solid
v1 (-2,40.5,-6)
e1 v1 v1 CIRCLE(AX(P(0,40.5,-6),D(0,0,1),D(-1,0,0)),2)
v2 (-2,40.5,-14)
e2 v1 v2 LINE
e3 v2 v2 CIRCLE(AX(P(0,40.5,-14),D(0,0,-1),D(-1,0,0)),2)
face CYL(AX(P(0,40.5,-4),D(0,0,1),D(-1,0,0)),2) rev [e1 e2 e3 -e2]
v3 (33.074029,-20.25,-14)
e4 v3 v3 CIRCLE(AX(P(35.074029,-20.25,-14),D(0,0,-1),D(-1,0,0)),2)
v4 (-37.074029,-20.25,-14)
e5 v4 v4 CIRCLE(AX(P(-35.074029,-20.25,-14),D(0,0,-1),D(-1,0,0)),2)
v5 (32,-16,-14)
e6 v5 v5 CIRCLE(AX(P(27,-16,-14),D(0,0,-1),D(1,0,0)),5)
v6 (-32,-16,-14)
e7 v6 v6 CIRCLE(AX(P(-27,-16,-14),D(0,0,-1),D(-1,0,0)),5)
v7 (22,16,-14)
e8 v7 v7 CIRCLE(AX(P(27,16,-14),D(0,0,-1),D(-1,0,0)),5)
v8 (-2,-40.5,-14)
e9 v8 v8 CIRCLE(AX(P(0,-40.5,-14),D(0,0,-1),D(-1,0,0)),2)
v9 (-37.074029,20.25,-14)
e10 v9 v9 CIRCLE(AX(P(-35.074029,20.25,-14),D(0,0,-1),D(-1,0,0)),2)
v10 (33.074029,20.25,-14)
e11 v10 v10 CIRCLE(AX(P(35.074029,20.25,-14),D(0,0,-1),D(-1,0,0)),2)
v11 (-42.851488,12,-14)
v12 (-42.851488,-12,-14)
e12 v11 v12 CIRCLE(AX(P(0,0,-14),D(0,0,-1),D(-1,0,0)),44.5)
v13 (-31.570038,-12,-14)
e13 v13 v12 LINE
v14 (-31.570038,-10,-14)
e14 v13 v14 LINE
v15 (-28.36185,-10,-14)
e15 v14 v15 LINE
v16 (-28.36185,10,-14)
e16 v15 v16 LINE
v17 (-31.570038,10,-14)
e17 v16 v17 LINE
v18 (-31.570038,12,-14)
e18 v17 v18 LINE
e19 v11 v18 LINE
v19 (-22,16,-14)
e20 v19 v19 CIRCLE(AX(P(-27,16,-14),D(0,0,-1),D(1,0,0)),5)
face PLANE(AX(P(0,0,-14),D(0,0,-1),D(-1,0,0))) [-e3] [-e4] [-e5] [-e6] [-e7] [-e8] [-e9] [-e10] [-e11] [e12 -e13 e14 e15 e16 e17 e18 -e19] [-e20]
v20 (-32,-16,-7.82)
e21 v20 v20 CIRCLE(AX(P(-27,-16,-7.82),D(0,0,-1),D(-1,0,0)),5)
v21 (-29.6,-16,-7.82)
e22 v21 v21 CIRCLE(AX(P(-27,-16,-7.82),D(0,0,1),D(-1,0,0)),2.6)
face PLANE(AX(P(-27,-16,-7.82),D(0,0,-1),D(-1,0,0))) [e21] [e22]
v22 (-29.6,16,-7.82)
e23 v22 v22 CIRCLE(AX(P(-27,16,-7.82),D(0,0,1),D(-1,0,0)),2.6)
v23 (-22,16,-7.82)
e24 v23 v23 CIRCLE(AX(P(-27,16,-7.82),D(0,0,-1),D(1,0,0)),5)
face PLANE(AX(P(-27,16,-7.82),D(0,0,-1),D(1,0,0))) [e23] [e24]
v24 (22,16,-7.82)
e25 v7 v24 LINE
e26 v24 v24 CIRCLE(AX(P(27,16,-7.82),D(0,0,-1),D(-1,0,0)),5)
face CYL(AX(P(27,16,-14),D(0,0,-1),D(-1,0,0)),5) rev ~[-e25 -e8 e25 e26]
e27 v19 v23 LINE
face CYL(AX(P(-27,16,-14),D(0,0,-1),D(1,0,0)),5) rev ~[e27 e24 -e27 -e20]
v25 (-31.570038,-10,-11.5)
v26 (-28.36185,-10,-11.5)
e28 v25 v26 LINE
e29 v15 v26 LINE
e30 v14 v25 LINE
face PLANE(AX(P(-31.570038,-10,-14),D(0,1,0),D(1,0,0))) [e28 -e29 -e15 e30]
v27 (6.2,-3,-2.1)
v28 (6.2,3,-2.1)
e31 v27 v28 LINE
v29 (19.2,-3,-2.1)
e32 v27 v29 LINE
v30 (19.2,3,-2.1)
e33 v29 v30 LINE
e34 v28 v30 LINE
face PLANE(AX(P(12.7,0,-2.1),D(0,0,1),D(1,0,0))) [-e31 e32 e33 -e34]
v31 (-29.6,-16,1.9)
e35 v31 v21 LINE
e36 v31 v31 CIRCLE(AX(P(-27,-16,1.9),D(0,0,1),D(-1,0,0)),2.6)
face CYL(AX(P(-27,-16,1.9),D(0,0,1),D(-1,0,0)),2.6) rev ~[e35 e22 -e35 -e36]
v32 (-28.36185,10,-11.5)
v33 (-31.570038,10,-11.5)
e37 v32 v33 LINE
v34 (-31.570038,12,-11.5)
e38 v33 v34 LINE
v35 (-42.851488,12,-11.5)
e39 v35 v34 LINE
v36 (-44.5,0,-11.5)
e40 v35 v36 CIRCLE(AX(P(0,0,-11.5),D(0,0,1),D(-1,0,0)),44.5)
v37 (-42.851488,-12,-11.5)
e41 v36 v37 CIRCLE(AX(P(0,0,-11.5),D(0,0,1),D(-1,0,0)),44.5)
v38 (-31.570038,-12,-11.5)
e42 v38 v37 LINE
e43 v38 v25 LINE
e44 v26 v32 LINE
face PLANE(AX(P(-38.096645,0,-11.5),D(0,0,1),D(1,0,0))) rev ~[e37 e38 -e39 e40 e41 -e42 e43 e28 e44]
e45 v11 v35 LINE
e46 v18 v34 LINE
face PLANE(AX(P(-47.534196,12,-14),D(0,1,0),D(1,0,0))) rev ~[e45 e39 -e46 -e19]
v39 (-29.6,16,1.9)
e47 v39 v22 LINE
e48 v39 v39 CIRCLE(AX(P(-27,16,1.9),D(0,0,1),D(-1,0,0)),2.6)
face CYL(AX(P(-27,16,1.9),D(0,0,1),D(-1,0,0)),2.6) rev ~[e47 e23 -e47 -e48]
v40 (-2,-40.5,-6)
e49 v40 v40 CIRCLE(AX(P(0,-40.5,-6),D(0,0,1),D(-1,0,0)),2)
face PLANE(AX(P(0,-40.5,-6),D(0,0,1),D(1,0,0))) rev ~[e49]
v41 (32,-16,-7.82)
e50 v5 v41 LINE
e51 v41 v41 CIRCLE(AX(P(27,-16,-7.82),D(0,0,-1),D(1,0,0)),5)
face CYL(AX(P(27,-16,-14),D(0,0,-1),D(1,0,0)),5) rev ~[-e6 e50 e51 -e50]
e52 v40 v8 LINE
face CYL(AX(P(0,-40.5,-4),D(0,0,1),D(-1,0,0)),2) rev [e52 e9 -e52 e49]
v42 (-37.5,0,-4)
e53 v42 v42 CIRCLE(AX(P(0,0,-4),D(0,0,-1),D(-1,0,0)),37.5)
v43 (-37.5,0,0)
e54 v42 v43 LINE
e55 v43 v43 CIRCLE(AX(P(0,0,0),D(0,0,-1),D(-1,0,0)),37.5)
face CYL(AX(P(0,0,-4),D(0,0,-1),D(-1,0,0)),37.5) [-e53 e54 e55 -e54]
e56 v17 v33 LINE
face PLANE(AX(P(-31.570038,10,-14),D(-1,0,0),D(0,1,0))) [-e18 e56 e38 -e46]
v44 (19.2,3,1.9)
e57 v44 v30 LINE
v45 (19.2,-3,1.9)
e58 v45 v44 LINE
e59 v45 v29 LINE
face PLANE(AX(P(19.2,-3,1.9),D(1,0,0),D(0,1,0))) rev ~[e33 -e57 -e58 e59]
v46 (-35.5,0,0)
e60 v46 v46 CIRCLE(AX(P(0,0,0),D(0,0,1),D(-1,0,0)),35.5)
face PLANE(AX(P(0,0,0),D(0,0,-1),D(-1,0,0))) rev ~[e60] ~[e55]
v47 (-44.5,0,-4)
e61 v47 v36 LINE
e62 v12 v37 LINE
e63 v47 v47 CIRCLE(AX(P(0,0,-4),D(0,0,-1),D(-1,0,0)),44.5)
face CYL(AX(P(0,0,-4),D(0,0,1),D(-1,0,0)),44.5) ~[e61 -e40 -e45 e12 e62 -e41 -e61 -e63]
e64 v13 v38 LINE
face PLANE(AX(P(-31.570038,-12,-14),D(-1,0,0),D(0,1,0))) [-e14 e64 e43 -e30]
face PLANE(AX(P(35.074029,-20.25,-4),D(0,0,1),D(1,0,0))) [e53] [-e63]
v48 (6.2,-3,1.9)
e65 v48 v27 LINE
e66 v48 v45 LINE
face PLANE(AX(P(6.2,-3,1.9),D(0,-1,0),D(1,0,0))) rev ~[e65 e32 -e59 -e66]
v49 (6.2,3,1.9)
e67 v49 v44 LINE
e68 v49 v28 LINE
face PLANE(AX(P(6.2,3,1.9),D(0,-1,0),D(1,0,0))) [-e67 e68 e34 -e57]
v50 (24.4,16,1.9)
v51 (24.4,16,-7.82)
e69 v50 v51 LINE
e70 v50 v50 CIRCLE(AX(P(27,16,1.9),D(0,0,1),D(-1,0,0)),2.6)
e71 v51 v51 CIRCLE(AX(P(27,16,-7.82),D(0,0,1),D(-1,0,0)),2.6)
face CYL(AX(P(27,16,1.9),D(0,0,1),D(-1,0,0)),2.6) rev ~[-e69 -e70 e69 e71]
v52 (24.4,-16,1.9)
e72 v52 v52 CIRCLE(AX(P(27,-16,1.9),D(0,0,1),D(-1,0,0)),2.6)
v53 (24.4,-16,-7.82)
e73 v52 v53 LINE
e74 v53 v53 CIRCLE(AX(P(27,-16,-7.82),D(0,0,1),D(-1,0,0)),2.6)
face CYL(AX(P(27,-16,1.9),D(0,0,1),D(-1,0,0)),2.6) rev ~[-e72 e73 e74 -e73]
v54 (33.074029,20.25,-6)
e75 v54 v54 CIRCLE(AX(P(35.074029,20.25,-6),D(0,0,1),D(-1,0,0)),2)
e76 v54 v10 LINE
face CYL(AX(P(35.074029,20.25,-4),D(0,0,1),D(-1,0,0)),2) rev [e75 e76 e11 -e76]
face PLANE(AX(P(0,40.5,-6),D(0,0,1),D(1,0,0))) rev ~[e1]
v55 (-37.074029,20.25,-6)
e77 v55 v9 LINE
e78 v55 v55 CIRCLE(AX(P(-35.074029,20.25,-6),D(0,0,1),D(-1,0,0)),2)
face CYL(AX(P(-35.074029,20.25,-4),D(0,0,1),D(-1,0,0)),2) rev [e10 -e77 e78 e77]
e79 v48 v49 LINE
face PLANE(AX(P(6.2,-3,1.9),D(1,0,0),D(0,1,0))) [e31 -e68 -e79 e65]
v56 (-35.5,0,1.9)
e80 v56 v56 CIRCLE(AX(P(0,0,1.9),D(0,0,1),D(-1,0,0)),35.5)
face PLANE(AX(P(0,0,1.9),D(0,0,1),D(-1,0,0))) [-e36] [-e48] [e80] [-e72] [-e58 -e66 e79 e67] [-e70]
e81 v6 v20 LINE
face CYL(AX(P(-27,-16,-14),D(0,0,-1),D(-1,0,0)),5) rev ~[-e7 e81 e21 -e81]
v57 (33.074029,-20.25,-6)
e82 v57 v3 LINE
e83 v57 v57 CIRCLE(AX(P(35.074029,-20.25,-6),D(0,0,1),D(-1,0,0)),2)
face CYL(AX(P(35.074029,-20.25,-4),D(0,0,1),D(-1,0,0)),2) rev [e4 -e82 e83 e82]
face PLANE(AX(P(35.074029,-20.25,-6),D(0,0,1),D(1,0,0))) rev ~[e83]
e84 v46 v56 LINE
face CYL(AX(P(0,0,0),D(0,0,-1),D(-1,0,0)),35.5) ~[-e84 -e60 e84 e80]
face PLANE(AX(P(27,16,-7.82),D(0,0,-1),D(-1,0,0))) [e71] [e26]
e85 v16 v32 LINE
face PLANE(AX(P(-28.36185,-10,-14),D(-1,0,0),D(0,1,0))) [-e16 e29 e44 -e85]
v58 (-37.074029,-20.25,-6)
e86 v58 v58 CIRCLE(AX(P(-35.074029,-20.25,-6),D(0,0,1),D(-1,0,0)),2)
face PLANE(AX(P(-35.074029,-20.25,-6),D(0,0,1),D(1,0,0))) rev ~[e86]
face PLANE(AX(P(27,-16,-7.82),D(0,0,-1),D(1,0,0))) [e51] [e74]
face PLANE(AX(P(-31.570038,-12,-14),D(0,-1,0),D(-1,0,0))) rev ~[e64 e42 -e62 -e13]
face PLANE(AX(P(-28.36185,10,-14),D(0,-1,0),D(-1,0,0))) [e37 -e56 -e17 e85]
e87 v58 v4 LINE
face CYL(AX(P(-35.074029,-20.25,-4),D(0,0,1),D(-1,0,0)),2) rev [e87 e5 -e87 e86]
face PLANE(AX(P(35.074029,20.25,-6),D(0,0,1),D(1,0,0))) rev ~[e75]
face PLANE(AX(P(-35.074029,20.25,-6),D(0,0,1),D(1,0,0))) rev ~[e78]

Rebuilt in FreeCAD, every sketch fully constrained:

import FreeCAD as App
import Part
import Sketcher

doc = App.newDocument("Part")
body = doc.addObject("PartDesign::Body", "Body")

# Sketch on XY plane
sketch1 = doc.addObject("Sketcher::SketchObject", "Sketch")
body.addObject(sketch1)
sketch1.AttachmentSupport = (doc.XY_Plane, [""])
sketch1.MapMode = "FlatFace"
sketch1.addGeometry([
    Part.Circle(App.Vector(0, 0, 0), App.Vector(0, 0, 1), 35.5),  # 0
    Part.Circle(App.Vector(27, 16, 0), App.Vector(0, 0, 1), 2.6),  # 1
    Part.Circle(App.Vector(-27, 16, 0), App.Vector(0, 0, 1), 2.6),  # 2
    Part.Circle(App.Vector(27, -16, 0), App.Vector(0, 0, 1), 2.6),  # 3
    Part.Circle(App.Vector(-27, -16, 0), App.Vector(0, 0, 1), 2.6),  # 4
], False)
sketch1.addConstraint([
    Sketcher.Constraint("Coincident", 0, 3, -1, 1),
    Sketcher.Constraint("Equal", 1, 2),
    Sketcher.Constraint("Equal", 2, 3),
    Sketcher.Constraint("Equal", 3, 4),
    Sketcher.Constraint("Symmetric", 2, 3, 3, 3, -1, 1),
    Sketcher.Constraint("Symmetric", 1, 3, 4, 3, -1, 1),
    Sketcher.Constraint("Symmetric", 1, 3, 2, 3, -2),
    Sketcher.Constraint("Diameter", 0, 71.0),
    Sketcher.Constraint("Diameter", 1, 5.2),
    Sketcher.Constraint("DistanceX", -1, 1, 1, 3, 27.0),
    Sketcher.Constraint("DistanceY", -1, 1, 1, 3, 16.0),
])
pad1 = doc.addObject("PartDesign::Pad", "Pad")
body.addObject(pad1)
pad1.Profile = sketch1
pad1.Length = 1.9

# Sketch on XY plane
sketch2 = doc.addObject("Sketcher::SketchObject", "Sketch001")
body.addObject(sketch2)
sketch2.AttachmentSupport = (doc.XY_Plane, [""])
sketch2.MapMode = "FlatFace"
sketch2.AttachmentOffset = App.Placement(App.Vector(0, 0, -4), App.Rotation())
sketch2.addGeometry([
    Part.Circle(App.Vector(0, 0, 0), App.Vector(0, 0, 1), 37.5),  # 0
    Part.Circle(App.Vector(27, -16, 0), App.Vector(0, 0, 1), 2.6),  # 1
    Part.Circle(App.Vector(-27, -16, 0), App.Vector(0, 0, 1), 2.6),  # 2
    Part.Circle(App.Vector(27, 16, 0), App.Vector(0, 0, 1), 2.6),  # 3
    Part.Circle(App.Vector(-27, 16, 0), App.Vector(0, 0, 1), 2.6),  # 4
], False)
sketch2.addConstraint([
    Sketcher.Constraint("Coincident", 0, 3, -1, 1),
    Sketcher.Constraint("Equal", 1, 2),
    Sketcher.Constraint("Equal", 2, 3),
    Sketcher.Constraint("Equal", 3, 4),
    Sketcher.Constraint("Symmetric", 2, 3, 3, 3, -1, 1),
    Sketcher.Constraint("Symmetric", 1, 3, 4, 3, -1, 1),
    Sketcher.Constraint("Symmetric", 1, 3, 2, 3, -2),
    Sketcher.Constraint("Diameter", 0, 75.0),
    Sketcher.Constraint("Diameter", 1, 5.2),
    Sketcher.Constraint("DistanceX", -1, 1, 1, 3, 27.0),
    Sketcher.Constraint("DistanceY", 1, 3, -1, 1, 16.0),
])
pad2 = doc.addObject("PartDesign::Pad", "Pad001")
body.addObject(pad2)
pad2.Profile = sketch2
pad2.Length = 4

# Sketch on XY plane
sketch3 = doc.addObject("Sketcher::SketchObject", "Sketch002")
body.addObject(sketch3)
sketch3.AttachmentSupport = (doc.XY_Plane, [""])
sketch3.MapMode = "FlatFace"
sketch3.AttachmentOffset = App.Placement(App.Vector(0, 0, 1.9), App.Rotation())
sketch3.addGeometry([
    Part.LineSegment(App.Vector(6, 3, 0), App.Vector(6, -3, 0)),
    Part.LineSegment(App.Vector(6, -3, 0), App.Vector(19, -3, 0)),
    Part.LineSegment(App.Vector(19, -3, 0), App.Vector(19, 3, 0)),
    Part.LineSegment(App.Vector(19, 3, 0), App.Vector(6, 3, 0)),
], False)
sketch3.addConstraint([
    Sketcher.Constraint("Coincident", 0, 2, 1, 1),
    Sketcher.Constraint("Coincident", 1, 2, 2, 1),
    Sketcher.Constraint("Coincident", 2, 2, 3, 1),
    Sketcher.Constraint("Coincident", 3, 2, 0, 1),
    Sketcher.Constraint("Vertical", 0),
    Sketcher.Constraint("Horizontal", 1),
    Sketcher.Constraint("Vertical", 2),
    Sketcher.Constraint("Horizontal", 3),
    Sketcher.Constraint("DistanceX", 1, 1, 1, 2, 13.0),
    Sketcher.Constraint("DistanceY", 0, 2, 0, 1, 6.0),
    Sketcher.Constraint("DistanceY", 0, 2, -1, 1, 3.0),
    Sketcher.Constraint("DistanceX", -1, 1, 0, 2, 6.2),
])
pocket1 = doc.addObject("PartDesign::Pocket", "Pocket")
body.addObject(pocket1)
pocket1.Profile = sketch3
pocket1.Length = 4

# Sketch on XY plane
sketch4 = doc.addObject("Sketcher::SketchObject", "Sketch003")
body.addObject(sketch4)
sketch4.AttachmentSupport = (doc.XY_Plane, [""])
sketch4.MapMode = "FlatFace"
sketch4.AttachmentOffset = App.Placement(App.Vector(0, 0, -4), App.Rotation())
sketch4.addGeometry([
    Part.Circle(App.Vector(0, 0, 0), App.Vector(0, 0, 1), 44.5),  # 0
    Part.Circle(App.Vector(35.1, -20.2, 0), App.Vector(0, 0, 1), 2),  # 1
    Part.Circle(App.Vector(0, -40.5, 0), App.Vector(0, 0, 1), 2),  # 2
    Part.Circle(App.Vector(-35.1, -20.2, 0), App.Vector(0, 0, 1), 2),  # 3
    Part.Circle(App.Vector(35.1, 20.2, 0), App.Vector(0, 0, 1), 2),  # 4
    Part.Circle(App.Vector(-35.1, 20.2, 0), App.Vector(0, 0, 1), 2),  # 5
    Part.Circle(App.Vector(0, 40.5, 0), App.Vector(0, 0, 1), 2),  # 6
], False)
sketch4.addConstraint([
    Sketcher.Constraint("Coincident", 0, 3, -1, 1),
    Sketcher.Constraint("Equal", 1, 2),
    Sketcher.Constraint("Equal", 2, 3),
    Sketcher.Constraint("Equal", 3, 4),
    Sketcher.Constraint("Equal", 4, 5),
    Sketcher.Constraint("Equal", 5, 6),
    Sketcher.Constraint("Symmetric", 3, 3, 4, 3, -1, 1),
    Sketcher.Constraint("Symmetric", 1, 3, 5, 3, -1, 1),
    Sketcher.Constraint("Symmetric", 2, 3, 6, 3, -1, 1),
    Sketcher.Constraint("Symmetric", 1, 3, 3, 3, -2),
    Sketcher.Constraint("PointOnObject", 2, 3, -2),
    Sketcher.Constraint("Diameter", 0, 89.0),
    Sketcher.Constraint("Diameter", 1, 4.0),
    Sketcher.Constraint("DistanceY", 2, 3, -1, 1, 40.5),
    Sketcher.Constraint("DistanceY", 1, 3, 4, 3, 40.5),
    Sketcher.Constraint("DistanceX", -1, 1, 1, 3, 35.074029),
])
pad3 = doc.addObject("PartDesign::Pad", "Pad002")
body.addObject(pad3)
pad3.Profile = sketch4
pad3.Length = 10
pad3.Reversed = True

# Sketch on XY plane
sketch5 = doc.addObject("Sketcher::SketchObject", "Sketch004")
body.addObject(sketch5)
sketch5.AttachmentSupport = (doc.XY_Plane, [""])
sketch5.MapMode = "FlatFace"
sketch5.AttachmentOffset = App.Placement(App.Vector(0, 0, 1.9), App.Rotation())
sketch5.addGeometry([
    Part.Circle(App.Vector(27, -16, 0), App.Vector(0, 0, 1), 2.6),
    Part.Circle(App.Vector(27, 16, 0), App.Vector(0, 0, 1), 2.6),
    Part.Circle(App.Vector(-27, -16, 0), App.Vector(0, 0, 1), 2.6),
    Part.Circle(App.Vector(-27, 16, 0), App.Vector(0, 0, 1), 2.6),
], False)
sketch5.addConstraint([
    Sketcher.Constraint("Equal", 0, 1),
    Sketcher.Constraint("Equal", 1, 2),
    Sketcher.Constraint("Equal", 2, 3),
    Sketcher.Constraint("Symmetric", 1, 3, 2, 3, -1, 1),
    Sketcher.Constraint("Symmetric", 0, 3, 3, 3, -1, 1),
    Sketcher.Constraint("Symmetric", 0, 3, 2, 3, -2),
    Sketcher.Constraint("Diameter", 0, 5.2),
    Sketcher.Constraint("DistanceX", -1, 1, 0, 3, 27.0),
    Sketcher.Constraint("DistanceY", 0, 3, -1, 1, 16.0),
])
pocket2 = doc.addObject("PartDesign::Pocket", "Pocket001")
body.addObject(pocket2)
pocket2.Profile = sketch5
pocket2.Type = "ThroughAll"

# Sketch on XY plane
sketch6 = doc.addObject("Sketcher::SketchObject", "Sketch005")
body.addObject(sketch6)
sketch6.AttachmentSupport = (doc.XY_Plane, [""])
sketch6.MapMode = "FlatFace"
sketch6.AttachmentOffset = App.Placement(App.Vector(0, 0, -14), App.Rotation())
sketch6.addGeometry([
    Part.Circle(App.Vector(27, 16, 0), App.Vector(0, 0, 1), 5),
    Part.Circle(App.Vector(-27, 16, 0), App.Vector(0, 0, 1), 5),
    Part.Circle(App.Vector(-27, -16, 0), App.Vector(0, 0, 1), 5),
    Part.Circle(App.Vector(27, -16, 0), App.Vector(0, 0, 1), 5),
], False)
sketch6.addConstraint([
    Sketcher.Constraint("Equal", 0, 1),
    Sketcher.Constraint("Equal", 1, 2),
    Sketcher.Constraint("Equal", 2, 3),
    Sketcher.Constraint("Symmetric", 0, 3, 2, 3, -1, 1),
    Sketcher.Constraint("Symmetric", 1, 3, 3, 3, -1, 1),
    Sketcher.Constraint("Symmetric", 0, 3, 1, 3, -2),
    Sketcher.Constraint("Diameter", 0, 10.0),
    Sketcher.Constraint("DistanceX", -1, 1, 0, 3, 27.0),
    Sketcher.Constraint("DistanceY", -1, 1, 0, 3, 16.0),
])
pocket3 = doc.addObject("PartDesign::Pocket", "Pocket002")
body.addObject(pocket3)
pocket3.Profile = sketch6
pocket3.Length = 6.18
pocket3.Reversed = True

# Sketch on XY plane
sketch7 = doc.addObject("Sketcher::SketchObject", "Sketch006")
body.addObject(sketch7)
sketch7.AttachmentSupport = (doc.XY_Plane, [""])
sketch7.MapMode = "FlatFace"
sketch7.AttachmentOffset = App.Placement(App.Vector(0, 0, -4), App.Rotation())
sketch7.addGeometry([
    Part.Circle(App.Vector(35.1, -20.2, 0), App.Vector(0, 0, 1), 2),  # 0
    Part.Circle(App.Vector(35.1, 20.2, 0), App.Vector(0, 0, 1), 2),  # 1
    Part.Circle(App.Vector(0, 40.5, 0), App.Vector(0, 0, 1), 2),  # 2
    Part.Circle(App.Vector(-35.1, 20.2, 0), App.Vector(0, 0, 1), 2),  # 3
    Part.Circle(App.Vector(-35.1, -20.2, 0), App.Vector(0, 0, 1), 2),  # 4
    Part.Circle(App.Vector(0, -40.5, 0), App.Vector(0, 0, 1), 2),  # 5
], False)
sketch7.addConstraint([
    Sketcher.Constraint("Equal", 0, 1),
    Sketcher.Constraint("Equal", 1, 2),
    Sketcher.Constraint("Equal", 2, 3),
    Sketcher.Constraint("Equal", 3, 4),
    Sketcher.Constraint("Equal", 4, 5),
    Sketcher.Constraint("Symmetric", 0, 3, 3, 3, -1, 1),
    Sketcher.Constraint("Symmetric", 1, 3, 4, 3, -1, 1),
    Sketcher.Constraint("Symmetric", 2, 3, 5, 3, -1, 1),
    Sketcher.Constraint("Symmetric", 1, 3, 3, 3, -2),
    Sketcher.Constraint("PointOnObject", 2, 3, -2),
    Sketcher.Constraint("Diameter", 0, 4.0),
    Sketcher.Constraint("DistanceY", 5, 3, 2, 3, 81.0),
    Sketcher.Constraint("DistanceY", 0, 3, 1, 3, 40.5),
    Sketcher.Constraint("DistanceX", -1, 1, 0, 3, 35.074029),
])
pad4 = doc.addObject("PartDesign::Pad", "Pad003")
body.addObject(pad4)
pad4.Profile = sketch7
pad4.Length = 2
pad4.Reversed = True

# Sketch on XY plane
sketch8 = doc.addObject("Sketcher::SketchObject", "Sketch007")
body.addObject(sketch8)
sketch8.AttachmentSupport = (doc.XY_Plane, [""])
sketch8.MapMode = "FlatFace"
sketch8.AttachmentOffset = App.Placement(App.Vector(0, 0, -14), App.Rotation())
sketch8.addGeometry([
    Part.LineSegment(App.Vector(-31.6, -12, 0), App.Vector(-47.5, -12, 0)),  # 0
    Part.LineSegment(App.Vector(-47.5, -12, 0), App.Vector(-47.5, 12, 0)),  # 1
    Part.LineSegment(App.Vector(-47.5, 12, 0), App.Vector(-31.6, 12, 0)),  # 2
    Part.LineSegment(App.Vector(-31.6, 12, 0), App.Vector(-31.6, 10, 0)),  # 3
    Part.LineSegment(App.Vector(-31.6, 10, 0), App.Vector(-28.4, 10, 0)),  # 4
    Part.LineSegment(App.Vector(-28.4, 10, 0), App.Vector(-28.4, -10, 0)),  # 5
    Part.LineSegment(App.Vector(-28.4, -10, 0), App.Vector(-31.6, -10, 0)),  # 6
    Part.LineSegment(App.Vector(-31.6, -10, 0), App.Vector(-31.6, -12, 0)),  # 7
], False)
sketch8.addConstraint([
    Sketcher.Constraint("Coincident", 0, 2, 1, 1),
    Sketcher.Constraint("Coincident", 1, 2, 2, 1),
    Sketcher.Constraint("Coincident", 2, 2, 3, 1),
    Sketcher.Constraint("Coincident", 3, 2, 4, 1),
    Sketcher.Constraint("Coincident", 4, 2, 5, 1),
    Sketcher.Constraint("Coincident", 5, 2, 6, 1),
    Sketcher.Constraint("Coincident", 6, 2, 7, 1),
    Sketcher.Constraint("Coincident", 7, 2, 0, 1),
    Sketcher.Constraint("Horizontal", 0),
    Sketcher.Constraint("Vertical", 1),
    Sketcher.Constraint("Horizontal", 2),
    Sketcher.Constraint("Vertical", 3),
    Sketcher.Constraint("Horizontal", 4),
    Sketcher.Constraint("Vertical", 5),
    Sketcher.Constraint("Horizontal", 6),
    Sketcher.Constraint("Vertical", 7),
    Sketcher.Constraint("Symmetric", 3, 2, 6, 2, -1),
    Sketcher.Constraint("Equal", 3, 7),
    Sketcher.Constraint("DistanceY", 1, 1, 1, 2, 24.0),
    Sketcher.Constraint("DistanceY", 3, 2, 3, 1, 2.0),
    Sketcher.Constraint("DistanceX", 0, 2, 0, 1, 15.964158),
    Sketcher.Constraint("DistanceX", 4, 1, 4, 2, 3.208188),
    Sketcher.Constraint("DistanceX", 2, 2, -1, 1, 31.570038),
])
pocket4 = doc.addObject("PartDesign::Pocket", "Pocket003")
body.addObject(pocket4)
pocket4.Profile = sketch8
pocket4.Length = 2.5
pocket4.Reversed = True

doc.recompute()
